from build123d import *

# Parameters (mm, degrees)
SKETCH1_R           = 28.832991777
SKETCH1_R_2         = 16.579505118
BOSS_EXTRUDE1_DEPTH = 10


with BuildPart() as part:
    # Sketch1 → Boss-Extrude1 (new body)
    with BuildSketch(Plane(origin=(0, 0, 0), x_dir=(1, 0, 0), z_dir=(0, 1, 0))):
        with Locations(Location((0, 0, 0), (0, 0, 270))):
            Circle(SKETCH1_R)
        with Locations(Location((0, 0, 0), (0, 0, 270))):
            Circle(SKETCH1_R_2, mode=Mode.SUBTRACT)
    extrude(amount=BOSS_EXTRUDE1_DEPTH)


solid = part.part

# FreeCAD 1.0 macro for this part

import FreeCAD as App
import Part
import Sketcher
from FreeCAD import Vector
Q = App.Units.Quantity

doc = App.newDocument("Part")
params = doc.addObject("Spreadsheet::Sheet", "Params")
for row, (alias, value) in enumerate([
    ("pad1_length", "10 mm"),
], start=1):
    params.set(f"A{row}", alias)
    params.set(f"B{row}", "=" + value)
    params.setAlias(f"B{row}", alias)

body = doc.addObject("PartDesign::Body", "Body")

# Sketch on XZ plane
sketch1 = body.newObject("Sketcher::SketchObject", "Sketch")
sketch1.AttachmentSupport = (doc.getObject("XZ_Plane"), [""])
sketch1.MapMode = "FlatFace"
sketch1.addGeometry([
    Part.Circle(Vector(0, 0, 0), Vector(0, 0, 1), 29),
    Part.Circle(Vector(0, 0, 0), Vector(0, 0, 1), 17),
], False)
sketch1.addConstraint([
    Sketcher.Constraint("Coincident", 0, 3, -1, 1),
    Sketcher.Constraint("Coincident", 1, 3, -1, 1),
    Sketcher.Constraint("Diameter", 1, Q("33.15901 mm")),
    Sketcher.Constraint("Diameter", 0, Q("57.665984 mm")),
])
pad1 = body.newObject("PartDesign::Pad", "Pad")
pad1.Profile = sketch1
pad1.setExpression("Length", "Params.pad1_length")
pad1.Reversed = True

doc.recompute()
